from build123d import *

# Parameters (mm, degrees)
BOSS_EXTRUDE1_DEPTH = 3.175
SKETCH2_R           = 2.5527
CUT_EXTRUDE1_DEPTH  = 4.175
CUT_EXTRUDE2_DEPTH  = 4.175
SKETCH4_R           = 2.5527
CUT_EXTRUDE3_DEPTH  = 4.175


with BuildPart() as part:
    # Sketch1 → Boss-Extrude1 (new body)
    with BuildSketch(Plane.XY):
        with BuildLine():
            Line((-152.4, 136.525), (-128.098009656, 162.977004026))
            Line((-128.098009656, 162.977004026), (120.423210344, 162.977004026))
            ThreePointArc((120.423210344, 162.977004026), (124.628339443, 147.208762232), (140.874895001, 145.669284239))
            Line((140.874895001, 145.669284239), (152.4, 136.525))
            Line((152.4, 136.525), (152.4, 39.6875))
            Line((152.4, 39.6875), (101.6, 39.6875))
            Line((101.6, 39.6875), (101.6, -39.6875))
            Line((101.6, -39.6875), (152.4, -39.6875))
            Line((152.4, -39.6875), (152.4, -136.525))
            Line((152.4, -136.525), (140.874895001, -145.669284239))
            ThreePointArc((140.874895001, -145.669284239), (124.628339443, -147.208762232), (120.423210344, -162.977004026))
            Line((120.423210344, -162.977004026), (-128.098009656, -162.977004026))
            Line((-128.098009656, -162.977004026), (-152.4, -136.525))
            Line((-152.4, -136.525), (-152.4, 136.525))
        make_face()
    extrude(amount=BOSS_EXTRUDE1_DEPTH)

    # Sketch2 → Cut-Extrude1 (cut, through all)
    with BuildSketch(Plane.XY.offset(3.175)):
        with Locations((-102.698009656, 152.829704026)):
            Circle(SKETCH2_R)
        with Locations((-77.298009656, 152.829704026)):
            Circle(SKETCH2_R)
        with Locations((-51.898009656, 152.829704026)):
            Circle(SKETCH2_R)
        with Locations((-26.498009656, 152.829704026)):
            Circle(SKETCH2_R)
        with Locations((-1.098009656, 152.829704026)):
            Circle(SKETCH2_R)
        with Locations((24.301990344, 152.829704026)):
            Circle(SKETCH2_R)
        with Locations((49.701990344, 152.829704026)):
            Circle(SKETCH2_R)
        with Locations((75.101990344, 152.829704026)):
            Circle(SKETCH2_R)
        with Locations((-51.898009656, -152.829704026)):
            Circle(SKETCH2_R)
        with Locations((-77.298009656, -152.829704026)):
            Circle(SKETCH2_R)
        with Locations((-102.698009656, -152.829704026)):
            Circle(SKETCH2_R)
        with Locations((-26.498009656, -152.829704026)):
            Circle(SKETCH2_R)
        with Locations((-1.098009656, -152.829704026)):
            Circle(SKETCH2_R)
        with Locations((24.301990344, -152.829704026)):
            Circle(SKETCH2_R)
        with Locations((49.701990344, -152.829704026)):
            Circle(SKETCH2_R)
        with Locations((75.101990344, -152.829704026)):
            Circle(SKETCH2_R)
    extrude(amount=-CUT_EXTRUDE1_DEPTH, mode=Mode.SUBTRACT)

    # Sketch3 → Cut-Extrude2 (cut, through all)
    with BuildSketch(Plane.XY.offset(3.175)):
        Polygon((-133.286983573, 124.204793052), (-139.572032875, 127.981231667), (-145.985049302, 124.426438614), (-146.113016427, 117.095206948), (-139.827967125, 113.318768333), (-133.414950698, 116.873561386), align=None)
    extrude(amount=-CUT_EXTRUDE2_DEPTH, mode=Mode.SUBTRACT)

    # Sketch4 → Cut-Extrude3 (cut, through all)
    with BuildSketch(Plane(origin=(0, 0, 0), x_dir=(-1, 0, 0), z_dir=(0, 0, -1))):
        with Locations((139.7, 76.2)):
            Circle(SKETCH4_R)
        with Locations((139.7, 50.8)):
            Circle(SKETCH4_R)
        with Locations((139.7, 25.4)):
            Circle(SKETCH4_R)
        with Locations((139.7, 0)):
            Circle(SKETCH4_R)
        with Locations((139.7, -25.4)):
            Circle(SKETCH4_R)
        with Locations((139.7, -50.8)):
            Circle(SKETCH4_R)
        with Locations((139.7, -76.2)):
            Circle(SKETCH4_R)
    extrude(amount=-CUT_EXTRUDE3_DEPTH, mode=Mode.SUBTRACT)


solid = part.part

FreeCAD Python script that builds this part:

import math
import FreeCAD as App
import Part
import Sketcher
from FreeCAD import Vector
Q = App.Units.Quantity

doc = App.newDocument("Part")
body = doc.addObject("PartDesign::Body", "Body")

sketch1 = body.newObject("Sketcher::SketchObject", "Sketch")
sketch1.AttachmentSupport = (doc.getObject("XY_Plane"), [""])
sketch1.MapMode = "FlatFace"
sketch1.addGeometry([
    Part.LineSegment(Vector(-128, 163, 0), Vector(-152, 137, 0)),
    Part.LineSegment(Vector(-152, 137, 0), Vector(-152, -137, 0)),
    Part.LineSegment(Vector(-152, -137, 0), Vector(-128, -163, 0)),
    Part.LineSegment(Vector(-128, -163, 0), Vector(120, -163, 0)),
    Part.ArcOfCircle(Part.Circle(Vector(134, -158, 0), Vector(0, 0, 1), 14), math.radians(61), math.radians(200)),
    Part.LineSegment(Vector(141, -146, 0), Vector(152, -137, 0)),
    Part.LineSegment(Vector(152, -137, 0), Vector(152, -40, 0)),
    Part.LineSegment(Vector(152, -40, 0), Vector(102, -40, 0)),
    Part.LineSegment(Vector(102, -40, 0), Vector(102, 40, 0)),
    Part.LineSegment(Vector(102, 40, 0), Vector(152, 40, 0)),
    Part.LineSegment(Vector(152, 40, 0), Vector(152, 137, 0)),
    Part.LineSegment(Vector(152, 137, 0), Vector(141, 146, 0)),
    Part.ArcOfCircle(Part.Circle(Vector(134, 158, 0), Vector(0, 0, 1), 14), math.radians(160), math.radians(299)),
    Part.LineSegment(Vector(120, 163, 0), Vector(-128, 163, 0)),
], False)
sketch1.addConstraint([
    Sketcher.Constraint("Coincident", 0, 2, 1, 1),
    Sketcher.Constraint("Coincident", 1, 2, 2, 1),
    Sketcher.Constraint("Coincident", 2, 2, 3, 1),
    Sketcher.Constraint("Coincident", 3, 2, 4, 2),
    Sketcher.Constraint("Coincident", 4, 1, 5, 1),
    Sketcher.Constraint("Coincident", 5, 2, 6, 1),
    Sketcher.Constraint("Coincident", 6, 2, 7, 1),
    Sketcher.Constraint("Coincident", 7, 2, 8, 1),
    Sketcher.Constraint("Coincident", 8, 2, 9, 1),
    Sketcher.Constraint("Coincident", 9, 2, 10, 1),
    Sketcher.Constraint("Coincident", 10, 2, 11, 1),
    Sketcher.Constraint("Coincident", 11, 2, 12, 2),
    Sketcher.Constraint("Coincident", 12, 1, 13, 1),
    Sketcher.Constraint("Coincident", 13, 2, 0, 1),
    Sketcher.Constraint("Vertical", 1),
    Sketcher.Constraint("Horizontal", 3),
    Sketcher.Constraint("Vertical", 6),
    Sketcher.Constraint("Horizontal", 7),
    Sketcher.Constraint("Vertical", 8),
    Sketcher.Constraint("Horizontal", 9),
    Sketcher.Constraint("Vertical", 10),
    Sketcher.Constraint("Horizontal", 13),
    Sketcher.Constraint("Equal", 4, 12),
    Sketcher.Constraint("Symmetric", 0, 2, 5, 2, -1, 1),
    Sketcher.Constraint("Symmetric", 1, 2, 10, 2, -1, 1),
    Sketcher.Constraint("Symmetric", 4, 3, 12, 3, -1),
    Sketcher.Constraint("Symmetric", 2, 2, 13, 2, -1),
    Sketcher.Constraint("Horizontal", 1, 2, 5, 2),
    Sketcher.Constraint("Vertical", 4, 1, 11, 2),
    Sketcher.Constraint("Equal", 6, 10),
    Sketcher.Constraint("DistanceX", 7, 2, 7, 1, Q("2 in")),
    Sketcher.Constraint("DistanceX", 0, 2, -1, 1, Q("6 in")),
    Sketcher.Constraint("Radius", 4, Q("0.5625 in")),
    Sketcher.Constraint("DistanceY", 1, 2, 1, 1, Q("10.75 in")),
    Sketcher.Constraint("DistanceY", 4, 3, 0, 2, Q("11.6 in")),
    Sketcher.Constraint("DistanceY", 6, 1, 6, 2, Q("3.8125 in")),
    Sketcher.Constraint("DistanceX", -1, 1, 4, 3, Q("5.27 in")),
    Sketcher.Constraint("DistanceX", 3, 1, 3, 2, Q("9.7843 in")),
    Sketcher.Constraint("Distance", 0, Q("1.4142 in")),
    Sketcher.Constraint("DistanceY", 3, 2, 4, 1, 17.30772),
])
pad1 = body.newObject("PartDesign::Pad", "Pad")
pad1.Profile = sketch1
pad1.Length = Q("0.125 in")

sketch2 = body.newObject("Sketcher::SketchObject", "Sketch001")
sketch2.AttachmentSupport = (doc.getObject("XY_Plane"), [""])
sketch2.MapMode = "FlatFace"
sketch2.AttachmentOffset = App.Placement(Vector(0, 0, 0.125 * 25.4), App.Rotation())
sketch2.addGeometry([
    Part.Circle(Vector(-102.7, 152.8, 0), Vector(0, 0, 1), 2.6),
    Part.Circle(Vector(-77.3, 152.8, 0), Vector(0, 0, 1), 2.6),
    Part.Circle(Vector(-51.9, 152.8, 0), Vector(0, 0, 1), 2.6),
    Part.Circle(Vector(-26.5, 152.8, 0), Vector(0, 0, 1), 2.6),
    Part.Circle(Vector(-1.1, 152.8, 0), Vector(0, 0, 1), 2.6),
    Part.Circle(Vector(24.3, 152.8, 0), Vector(0, 0, 1), 2.6),
    Part.Circle(Vector(49.7, 152.8, 0), Vector(0, 0, 1), 2.6),
    Part.Circle(Vector(75.1, 152.8, 0), Vector(0, 0, 1), 2.6),
    Part.Circle(Vector(-51.9, -152.8, 0), Vector(0, 0, 1), 2.6),
    Part.Circle(Vector(-77.3, -152.8, 0), Vector(0, 0, 1), 2.6),
    Part.Circle(Vector(-102.7, -152.8, 0), Vector(0, 0, 1), 2.6),
    Part.Circle(Vector(-26.5, -152.8, 0), Vector(0, 0, 1), 2.6),
    Part.Circle(Vector(-1.1, -152.8, 0), Vector(0, 0, 1), 2.6),
    Part.Circle(Vector(24.3, -152.8, 0), Vector(0, 0, 1), 2.6),
    Part.Circle(Vector(49.7, -152.8, 0), Vector(0, 0, 1), 2.6),
    Part.Circle(Vector(75.1, -152.8, 0), Vector(0, 0, 1), 2.6),
], False)
sketch2.addConstraint([
    Sketcher.Constraint("Equal", 0, 1),
    Sketcher.Constraint("Equal", 1, 2),
    Sketcher.Constraint("Equal", 2, 3),
    Sketcher.Constraint("Equal", 3, 4),
    Sketcher.Constraint("Equal", 4, 5),
    Sketcher.Constraint("Equal", 5, 6),
    Sketcher.Constraint("Equal", 6, 7),
    Sketcher.Constraint("Equal", 7, 8),
    Sketcher.Constraint("Equal", 8, 9),
    Sketcher.Constraint("Equal", 9, 10),
    Sketcher.Constraint("Equal", 10, 11),
    Sketcher.Constraint("Equal", 11, 12),
    Sketcher.Constraint("Equal", 12, 13),
    Sketcher.Constraint("Equal", 13, 14),
    Sketcher.Constraint("Equal", 14, 15),
    Sketcher.Constraint("Symmetric", 2, 3, 8, 3, -1),
    Sketcher.Constraint("Symmetric", 1, 3, 9, 3, -1),
    Sketcher.Constraint("Symmetric", 0, 3, 10, 3, -1),
    Sketcher.Constraint("Symmetric", 3, 3, 11, 3, -1),
    Sketcher.Constraint("Symmetric", 4, 3, 12, 3, -1),
    Sketcher.Constraint("Symmetric", 5, 3, 13, 3, -1),
    Sketcher.Constraint("Symmetric", 6, 3, 14, 3, -1),
    Sketcher.Constraint("Symmetric", 7, 3, 15, 3, -1),
    Sketcher.Constraint("Horizontal", 0, 3, 1, 3),
    Sketcher.Constraint("Horizontal", 1, 3, 2, 3),
    Sketcher.Constraint("Horizontal", 2, 3, 3, 3),
    Sketcher.Constraint("Horizontal", 3, 3, 4, 3),
    Sketcher.Constraint("Horizontal", 4, 3, 5, 3),
    Sketcher.Constraint("Horizontal", 5, 3, 6, 3),
    Sketcher.Constraint("Horizontal", 6, 3, 7, 3),
    Sketcher.Constraint("Diameter", 0, Q("0.201 in")),
    Sketcher.Constraint("DistanceX", 0, 3, 1, 3, Q("1 in")),
    Sketcher.Constraint("DistanceX", 1, 3, 2, 3, Q("1 in")),
    Sketcher.Constraint("DistanceX", 2, 3, 3, 3, Q("1 in")),
    Sketcher.Constraint("DistanceX", 3, 3, 4, 3, Q("1 in")),
    Sketcher.Constraint("DistanceX", 4, 3, 5, 3, Q("1 in")),
    Sketcher.Constraint("DistanceX", 5, 3, 6, 3, Q("1 in")),
    Sketcher.Constraint("DistanceX", 6, 3, 7, 3, Q("1 in")),
    Sketcher.Constraint("DistanceX", 0, 3, -1, 1, 102.69801),
    Sketcher.Constraint("DistanceY", 8, 3, 2, 3, 305.659408),
])
pocket1 = body.newObject("PartDesign::Pocket", "Pocket")
pocket1.Profile = sketch2
pocket1.Type = "ThroughAll"

sketch3 = body.newObject("Sketcher::SketchObject", "Sketch002")
sketch3.AttachmentSupport = (doc.getObject("XY_Plane"), [""])
sketch3.MapMode = "FlatFace"
sketch3.AttachmentOffset = App.Placement(Vector(0, 0, 0.125 * 25.4), App.Rotation())
sketch3.addGeometry([
    Part.LineSegment(Vector(-133, 124, 0), Vector(-140, 128, 0)),
    Part.LineSegment(Vector(-140, 128, 0), Vector(-146, 124, 0)),
    Part.LineSegment(Vector(-146, 124, 0), Vector(-146, 117, 0)),
    Part.LineSegment(Vector(-146, 117, 0), Vector(-140, 113, 0)),
    Part.LineSegment(Vector(-140, 113, 0), Vector(-133, 117, 0)),
    Part.LineSegment(Vector(-133, 117, 0), Vector(-133, 124, 0)),
], False)
sketch3.addConstraint([
    Sketcher.Constraint("Coincident", 0, 2, 1, 1),
    Sketcher.Constraint("Coincident", 1, 2, 2, 1),
    Sketcher.Constraint("Coincident", 2, 2, 3, 1),
    Sketcher.Constraint("Coincident", 3, 2, 4, 1),
    Sketcher.Constraint("Coincident", 4, 2, 5, 1),
    Sketcher.Constraint("Coincident", 5, 2, 0, 1),
    Sketcher.Constraint("Parallel", 0, 3),
    Sketcher.Constraint("Parallel", 1, 4),
    Sketcher.Constraint("Parallel", 2, 5),
    Sketcher.Constraint("Equal", 0, 1),
    Sketcher.Constraint("Equal", 1, 2),
    Sketcher.Constraint("Equal", 2, 3),
    Sketcher.Constraint("Angle", 0, Q("149 deg")),
    Sketcher.Constraint("Angle", 1, Q("-151 deg")),
    Sketcher.Constraint("Angle", 2, Q("-91 deg")),
    Sketcher.Constraint("DistanceX", 1, 2, 4, 2, 12.570099),
    Sketcher.Constraint("DistanceY", -1, 1, 0, 2, 127.981232),
    Sketcher.Constraint("DistanceX", 1, 2, -1, 1, 145.985049),
])
pocket2 = body.newObject("PartDesign::Pocket", "Pocket001")
pocket2.Profile = sketch3
pocket2.Type = "ThroughAll"

sketch4 = body.newObject("Sketcher::SketchObject", "Sketch003")
sketch4.AttachmentSupport = (doc.getObject("XY_Plane"), [""])
sketch4.MapMode = "FlatFace"
sketch4.addGeometry([
    Part.Circle(Vector(-139.7, 76.2, 0), Vector(0, 0, 1), 2.6),
    Part.Circle(Vector(-139.7, 50.8, 0), Vector(0, 0, 1), 2.6),
    Part.Circle(Vector(-139.7, 25.4, 0), Vector(0, 0, 1), 2.6),
    Part.Circle(Vector(-139.7, 0, 0), Vector(0, 0, 1), 2.6),
    Part.Circle(Vector(-139.7, -25.4, 0), Vector(0, 0, 1), 2.6),
    Part.Circle(Vector(-139.7, -50.8, 0), Vector(0, 0, 1), 2.6),
    Part.Circle(Vector(-139.7, -76.2, 0), Vector(0, 0, 1), 2.6),
], False)
sketch4.addConstraint([
    Sketcher.Constraint("Equal", 0, 1),
    Sketcher.Constraint("Equal", 1, 2),
    Sketcher.Constraint("Equal", 2, 3),
    Sketcher.Constraint("Equal", 3, 4),
    Sketcher.Constraint("Equal", 4, 5),
    Sketcher.Constraint("Equal", 5, 6),
    Sketcher.Constraint("Symmetric", 2, 3, 4, 3, -1),
    Sketcher.Constraint("Symmetric", 1, 3, 5, 3, -1),
    Sketcher.Constraint("Symmetric", 0, 3, 6, 3, -1),
    Sketcher.Constraint("PointOnObject", 3, 3, -1),
    Sketcher.Constraint("Vertical", 0, 3, 1, 3),
    Sketcher.Constraint("Vertical", 1, 3, 2, 3),
    Sketcher.Constraint("Vertical", 2, 3, 3, 3),
    Sketcher.Constraint("Diameter", 0, Q("0.201 in")),
    Sketcher.Constraint("DistanceY", -1, 1, 0, 3, Q("3 in")),
    Sketcher.Constraint("DistanceY", -1, 1, 1, 3, Q("2 in")),
    Sketcher.Constraint("DistanceY", -1, 1, 2, 3, Q("1 in")),
    Sketcher.Constraint("DistanceX", 0, 3, -1, 1, Q("5.5 in")),
])
pocket3 = body.newObject("PartDesign::Pocket", "Pocket002")
pocket3.Profile = sketch4
pocket3.Type = "ThroughAll"
pocket3.Reversed = True

doc.recompute()
